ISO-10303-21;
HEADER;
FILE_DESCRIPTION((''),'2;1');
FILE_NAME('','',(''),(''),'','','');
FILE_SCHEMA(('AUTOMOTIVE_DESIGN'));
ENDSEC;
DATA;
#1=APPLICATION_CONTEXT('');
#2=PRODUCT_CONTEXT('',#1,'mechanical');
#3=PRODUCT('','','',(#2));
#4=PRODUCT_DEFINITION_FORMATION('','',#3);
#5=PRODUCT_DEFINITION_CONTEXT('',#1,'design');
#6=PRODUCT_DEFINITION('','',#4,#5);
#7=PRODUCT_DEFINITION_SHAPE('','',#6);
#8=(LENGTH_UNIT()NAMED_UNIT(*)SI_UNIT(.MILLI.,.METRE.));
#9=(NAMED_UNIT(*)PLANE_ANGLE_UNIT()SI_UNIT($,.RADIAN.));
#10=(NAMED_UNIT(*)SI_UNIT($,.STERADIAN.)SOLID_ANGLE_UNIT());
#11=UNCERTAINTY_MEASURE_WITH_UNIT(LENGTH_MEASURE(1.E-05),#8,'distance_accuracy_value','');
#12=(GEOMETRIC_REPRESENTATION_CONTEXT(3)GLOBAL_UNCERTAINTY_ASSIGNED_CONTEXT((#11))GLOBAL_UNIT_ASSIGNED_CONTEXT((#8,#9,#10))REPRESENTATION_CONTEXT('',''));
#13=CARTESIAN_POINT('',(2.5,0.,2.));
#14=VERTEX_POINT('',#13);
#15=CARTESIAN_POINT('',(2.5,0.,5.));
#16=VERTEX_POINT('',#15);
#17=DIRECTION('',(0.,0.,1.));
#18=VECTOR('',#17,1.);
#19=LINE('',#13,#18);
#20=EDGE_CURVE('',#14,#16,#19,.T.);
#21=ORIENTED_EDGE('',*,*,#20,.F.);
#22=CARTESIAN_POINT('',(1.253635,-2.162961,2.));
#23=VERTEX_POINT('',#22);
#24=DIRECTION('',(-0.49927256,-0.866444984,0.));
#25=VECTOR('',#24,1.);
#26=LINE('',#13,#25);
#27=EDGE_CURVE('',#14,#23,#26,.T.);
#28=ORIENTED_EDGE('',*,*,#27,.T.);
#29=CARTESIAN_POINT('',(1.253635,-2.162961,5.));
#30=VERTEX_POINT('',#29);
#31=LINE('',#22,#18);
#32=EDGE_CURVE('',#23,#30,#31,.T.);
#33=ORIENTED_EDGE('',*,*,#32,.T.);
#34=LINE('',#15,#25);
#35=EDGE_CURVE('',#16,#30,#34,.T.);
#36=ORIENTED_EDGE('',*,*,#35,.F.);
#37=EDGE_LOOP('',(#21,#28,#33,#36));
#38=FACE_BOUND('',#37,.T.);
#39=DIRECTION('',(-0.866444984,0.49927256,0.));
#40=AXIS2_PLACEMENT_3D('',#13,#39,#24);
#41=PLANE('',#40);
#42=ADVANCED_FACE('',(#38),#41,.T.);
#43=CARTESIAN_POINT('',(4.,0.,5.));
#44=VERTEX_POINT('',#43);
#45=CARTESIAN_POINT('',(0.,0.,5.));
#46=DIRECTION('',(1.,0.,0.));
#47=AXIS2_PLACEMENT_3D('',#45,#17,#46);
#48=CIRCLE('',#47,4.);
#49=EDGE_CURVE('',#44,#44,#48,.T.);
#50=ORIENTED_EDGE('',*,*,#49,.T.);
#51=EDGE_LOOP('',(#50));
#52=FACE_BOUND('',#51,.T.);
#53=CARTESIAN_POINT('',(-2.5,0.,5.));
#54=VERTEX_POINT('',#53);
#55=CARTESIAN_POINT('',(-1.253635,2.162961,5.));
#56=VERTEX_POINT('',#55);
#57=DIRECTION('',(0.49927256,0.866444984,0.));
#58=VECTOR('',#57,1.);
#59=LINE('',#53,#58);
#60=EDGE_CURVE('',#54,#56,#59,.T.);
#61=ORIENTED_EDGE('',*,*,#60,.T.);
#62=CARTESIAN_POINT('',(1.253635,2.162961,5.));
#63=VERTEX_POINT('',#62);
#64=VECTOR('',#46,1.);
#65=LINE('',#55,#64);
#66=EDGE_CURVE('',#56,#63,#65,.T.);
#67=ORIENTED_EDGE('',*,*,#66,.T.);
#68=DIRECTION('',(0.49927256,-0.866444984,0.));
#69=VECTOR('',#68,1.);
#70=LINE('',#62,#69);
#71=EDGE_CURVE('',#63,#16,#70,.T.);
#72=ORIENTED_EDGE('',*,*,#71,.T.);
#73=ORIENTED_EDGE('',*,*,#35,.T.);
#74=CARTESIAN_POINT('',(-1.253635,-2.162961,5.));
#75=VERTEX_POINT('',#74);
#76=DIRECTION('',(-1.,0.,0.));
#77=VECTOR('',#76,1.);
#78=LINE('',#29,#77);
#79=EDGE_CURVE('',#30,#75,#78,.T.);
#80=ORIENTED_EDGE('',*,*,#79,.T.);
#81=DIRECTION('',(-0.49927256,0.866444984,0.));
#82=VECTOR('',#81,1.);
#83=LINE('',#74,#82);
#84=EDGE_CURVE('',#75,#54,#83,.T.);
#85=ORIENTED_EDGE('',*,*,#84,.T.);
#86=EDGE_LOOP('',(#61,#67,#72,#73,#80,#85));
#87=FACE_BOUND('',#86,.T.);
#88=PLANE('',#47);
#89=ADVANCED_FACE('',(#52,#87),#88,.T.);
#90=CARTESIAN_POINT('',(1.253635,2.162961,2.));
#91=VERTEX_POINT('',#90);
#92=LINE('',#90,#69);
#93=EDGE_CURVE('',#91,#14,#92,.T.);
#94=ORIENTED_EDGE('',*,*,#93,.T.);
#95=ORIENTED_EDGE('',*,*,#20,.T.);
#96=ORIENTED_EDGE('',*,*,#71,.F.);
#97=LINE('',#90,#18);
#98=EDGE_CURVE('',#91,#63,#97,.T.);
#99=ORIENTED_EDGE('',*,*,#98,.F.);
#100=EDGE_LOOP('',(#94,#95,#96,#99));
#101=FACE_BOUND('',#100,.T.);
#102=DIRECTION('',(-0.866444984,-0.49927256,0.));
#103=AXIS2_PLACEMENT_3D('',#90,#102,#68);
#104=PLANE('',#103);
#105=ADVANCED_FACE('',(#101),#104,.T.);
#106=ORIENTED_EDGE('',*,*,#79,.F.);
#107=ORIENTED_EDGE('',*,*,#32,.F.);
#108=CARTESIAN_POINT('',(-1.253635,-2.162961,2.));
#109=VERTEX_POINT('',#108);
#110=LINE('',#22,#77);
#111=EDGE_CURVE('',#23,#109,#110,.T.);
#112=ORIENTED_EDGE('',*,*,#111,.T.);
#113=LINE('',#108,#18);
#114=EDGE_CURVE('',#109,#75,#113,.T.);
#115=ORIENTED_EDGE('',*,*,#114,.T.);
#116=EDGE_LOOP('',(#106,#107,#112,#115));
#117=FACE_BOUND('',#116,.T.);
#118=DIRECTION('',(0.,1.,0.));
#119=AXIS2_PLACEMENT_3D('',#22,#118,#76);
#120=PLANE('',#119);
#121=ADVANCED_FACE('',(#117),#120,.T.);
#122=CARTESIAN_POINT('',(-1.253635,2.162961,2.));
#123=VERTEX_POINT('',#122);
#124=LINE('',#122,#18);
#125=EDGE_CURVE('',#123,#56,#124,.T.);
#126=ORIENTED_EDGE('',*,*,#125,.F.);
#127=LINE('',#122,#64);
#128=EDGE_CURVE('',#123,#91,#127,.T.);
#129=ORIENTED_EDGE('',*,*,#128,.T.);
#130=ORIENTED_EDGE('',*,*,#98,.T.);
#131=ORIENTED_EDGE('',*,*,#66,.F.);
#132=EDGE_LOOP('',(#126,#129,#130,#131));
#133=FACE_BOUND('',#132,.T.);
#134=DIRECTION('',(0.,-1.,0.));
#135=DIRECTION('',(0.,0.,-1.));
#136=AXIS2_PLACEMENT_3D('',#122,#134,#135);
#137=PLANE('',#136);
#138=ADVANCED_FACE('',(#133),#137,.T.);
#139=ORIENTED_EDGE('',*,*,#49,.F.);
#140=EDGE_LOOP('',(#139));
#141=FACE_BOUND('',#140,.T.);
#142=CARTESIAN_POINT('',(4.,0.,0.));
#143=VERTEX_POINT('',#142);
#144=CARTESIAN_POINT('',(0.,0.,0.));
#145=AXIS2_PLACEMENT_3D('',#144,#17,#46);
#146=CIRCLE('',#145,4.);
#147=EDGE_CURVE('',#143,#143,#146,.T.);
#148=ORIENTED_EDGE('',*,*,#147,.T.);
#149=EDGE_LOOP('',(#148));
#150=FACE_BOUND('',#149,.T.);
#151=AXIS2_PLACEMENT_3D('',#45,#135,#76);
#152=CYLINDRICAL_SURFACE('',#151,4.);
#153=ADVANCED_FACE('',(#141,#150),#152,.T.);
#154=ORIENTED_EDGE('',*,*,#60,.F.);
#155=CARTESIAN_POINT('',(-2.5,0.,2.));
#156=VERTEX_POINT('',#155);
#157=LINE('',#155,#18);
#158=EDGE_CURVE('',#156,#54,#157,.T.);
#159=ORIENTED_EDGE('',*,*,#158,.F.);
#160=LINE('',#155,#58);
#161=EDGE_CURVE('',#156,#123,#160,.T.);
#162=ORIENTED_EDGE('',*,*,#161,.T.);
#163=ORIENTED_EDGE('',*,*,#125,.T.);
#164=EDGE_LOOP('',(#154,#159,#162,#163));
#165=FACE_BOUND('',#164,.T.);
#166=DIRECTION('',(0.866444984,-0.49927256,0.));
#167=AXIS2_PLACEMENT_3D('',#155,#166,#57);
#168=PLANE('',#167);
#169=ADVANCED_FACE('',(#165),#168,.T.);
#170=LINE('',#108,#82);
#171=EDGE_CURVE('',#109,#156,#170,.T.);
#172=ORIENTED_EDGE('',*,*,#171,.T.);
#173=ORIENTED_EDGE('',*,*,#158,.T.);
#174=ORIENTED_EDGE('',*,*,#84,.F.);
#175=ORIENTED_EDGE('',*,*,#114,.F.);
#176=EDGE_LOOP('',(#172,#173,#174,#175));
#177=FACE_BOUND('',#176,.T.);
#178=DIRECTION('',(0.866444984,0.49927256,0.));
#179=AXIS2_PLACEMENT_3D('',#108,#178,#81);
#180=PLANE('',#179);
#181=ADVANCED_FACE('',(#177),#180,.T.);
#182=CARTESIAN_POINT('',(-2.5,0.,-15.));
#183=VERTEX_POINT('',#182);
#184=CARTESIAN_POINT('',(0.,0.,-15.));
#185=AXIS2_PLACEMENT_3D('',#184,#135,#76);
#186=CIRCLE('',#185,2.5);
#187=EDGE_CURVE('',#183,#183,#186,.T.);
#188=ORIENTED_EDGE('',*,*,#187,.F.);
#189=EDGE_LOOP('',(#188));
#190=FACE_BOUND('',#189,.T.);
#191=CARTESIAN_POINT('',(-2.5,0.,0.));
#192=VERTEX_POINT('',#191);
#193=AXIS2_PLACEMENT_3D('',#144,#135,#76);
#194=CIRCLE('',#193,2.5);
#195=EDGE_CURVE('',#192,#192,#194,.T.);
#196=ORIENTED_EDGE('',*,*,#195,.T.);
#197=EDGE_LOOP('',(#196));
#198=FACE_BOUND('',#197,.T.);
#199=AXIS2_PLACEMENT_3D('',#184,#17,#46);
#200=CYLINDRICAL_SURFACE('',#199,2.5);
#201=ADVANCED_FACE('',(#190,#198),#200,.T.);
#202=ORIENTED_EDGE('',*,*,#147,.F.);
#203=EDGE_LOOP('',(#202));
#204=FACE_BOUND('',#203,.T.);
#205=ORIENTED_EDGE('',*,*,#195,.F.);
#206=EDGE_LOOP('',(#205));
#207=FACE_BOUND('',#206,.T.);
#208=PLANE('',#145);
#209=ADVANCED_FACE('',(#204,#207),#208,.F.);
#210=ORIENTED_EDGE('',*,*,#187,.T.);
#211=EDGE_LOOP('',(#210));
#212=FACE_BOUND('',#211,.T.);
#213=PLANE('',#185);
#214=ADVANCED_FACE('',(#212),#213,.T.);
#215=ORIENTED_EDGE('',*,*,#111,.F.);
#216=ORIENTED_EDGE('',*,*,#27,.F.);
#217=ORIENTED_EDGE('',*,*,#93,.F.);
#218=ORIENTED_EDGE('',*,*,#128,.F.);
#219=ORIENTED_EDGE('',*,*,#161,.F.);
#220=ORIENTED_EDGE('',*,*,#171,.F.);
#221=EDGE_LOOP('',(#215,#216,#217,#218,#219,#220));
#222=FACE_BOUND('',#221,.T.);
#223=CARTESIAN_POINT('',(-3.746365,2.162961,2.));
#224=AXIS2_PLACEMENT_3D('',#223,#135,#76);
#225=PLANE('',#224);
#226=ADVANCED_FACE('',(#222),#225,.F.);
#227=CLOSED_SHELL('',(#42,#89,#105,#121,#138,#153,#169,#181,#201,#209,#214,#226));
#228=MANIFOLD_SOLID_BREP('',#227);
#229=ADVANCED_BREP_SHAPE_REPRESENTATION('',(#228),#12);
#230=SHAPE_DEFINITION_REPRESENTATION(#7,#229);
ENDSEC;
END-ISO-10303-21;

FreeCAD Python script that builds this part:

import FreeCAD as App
import Part
import Sketcher

V = App.Vector
Q = App.Units.Quantity


def add_polygon(sketch, points):
    """Adds a closed chain of lines whose ends are joined by coincident constraints."""
    first, n = sketch.GeometryCount, len(points)
    for a, b in zip(points, points[1:] + points[:1]):
        sketch.addGeometry(Part.LineSegment(App.Vector(*a, 0), App.Vector(*b, 0)), False)
    for i in range(n):
        sketch.addConstraint(Sketcher.Constraint("Coincident", first + i, 2, first + (i + 1) % n, 1))

doc = App.newDocument("Part")
params = doc.addObject("Spreadsheet::Sheet", "Params")
for row, (alias, value) in enumerate([
    ("sketch1_diameter", "8 mm"),
    ("pad1_length", "5 mm"),
    ("pocket1_length", "3 mm"),
    ("sketch3_diameter", "5 mm"),
    ("pad2_length", "15 mm"),
], start=1):
    params.set(f"A{row}", alias)
    params.set(f"B{row}", "=" + value)
    params.setAlias(f"B{row}", alias)

body = doc.addObject("PartDesign::Body", "Body")

# Sketch on XY plane
sketch1 = body.newObject("Sketcher::SketchObject", "Sketch")
sketch1.AttachmentSupport = (doc.getObject("XY_Plane"), [""])
sketch1.MapMode = "FlatFace"
sketch1.addGeometry(Part.Circle(V(0, 0, 0), V(0, 0, 1), 4), False)
sketch1.addConstraint([
    Sketcher.Constraint("Coincident", 0, 3, -1, 1),
    Sketcher.Constraint("Diameter", 0, Q("8 mm")),
])
sketch1.setExpression("Constraints[1]", "Params.sketch1_diameter")
pad1 = body.newObject("PartDesign::Pad", "Pad")
pad1.Profile = sketch1
pad1.setExpression("Length", "Params.pad1_length")

# Sketch on XY plane
sketch2 = body.newObject("Sketcher::SketchObject", "Sketch001")
sketch2.AttachmentSupport = (doc.getObject("XY_Plane"), [""])
sketch2.MapMode = "FlatFace"
sketch2.AttachmentOffset = App.Placement(V(0, 0, 5), App.Rotation())
add_polygon(sketch2, [(-1.3, 2.2), (-2.5, 0), (-1.3, -2.2), (1.3, -2.2), (2.5, 0), (1.3, 2.2)])  # lines 0-5
sketch2.addConstraint([
    Sketcher.Constraint("Horizontal", 2),
    Sketcher.Constraint("Horizontal", 5),
    Sketcher.Constraint("Symmetric", 0, 2, 3, 2, -1, 1),
    Sketcher.Constraint("Symmetric", 1, 2, 4, 2, -1, 1),
    Sketcher.Constraint("PointOnObject", 0, 2, -1),
    Sketcher.Constraint("Parallel", 0, 3),
    Sketcher.Constraint("Vertical", 2, 2, 4, 2),
    Sketcher.Constraint("DistanceX", 0, 2, 3, 2, Q("5 mm")),
    Sketcher.Constraint("DistanceX", 2, 1, 2, 2, Q("2.507269 mm")),
    Sketcher.Constraint("DistanceY", 1, 2, -1, 1, Q("2.162961 mm")),
])
pocket1 = body.newObject("PartDesign::Pocket", "Pocket")
pocket1.Profile = sketch2
pocket1.setExpression("Length", "Params.pocket1_length")

# Sketch on XY plane
sketch3 = body.newObject("Sketcher::SketchObject", "Sketch002")
sketch3.AttachmentSupport = (doc.getObject("XY_Plane"), [""])
sketch3.MapMode = "FlatFace"
sketch3.addGeometry(Part.Circle(V(0, 0, 0), V(0, 0, 1), 2.5), False)
sketch3.addConstraint([
    Sketcher.Constraint("Coincident", 0, 3, -1, 1),
    Sketcher.Constraint("Diameter", 0, Q("5 mm")),
])
sketch3.setExpression("Constraints[1]", "Params.sketch3_diameter")
pad2 = body.newObject("PartDesign::Pad", "Pad001")
pad2.Profile = sketch3
pad2.setExpression("Length", "Params.pad2_length")
pad2.Reversed = True

doc.recompute()
